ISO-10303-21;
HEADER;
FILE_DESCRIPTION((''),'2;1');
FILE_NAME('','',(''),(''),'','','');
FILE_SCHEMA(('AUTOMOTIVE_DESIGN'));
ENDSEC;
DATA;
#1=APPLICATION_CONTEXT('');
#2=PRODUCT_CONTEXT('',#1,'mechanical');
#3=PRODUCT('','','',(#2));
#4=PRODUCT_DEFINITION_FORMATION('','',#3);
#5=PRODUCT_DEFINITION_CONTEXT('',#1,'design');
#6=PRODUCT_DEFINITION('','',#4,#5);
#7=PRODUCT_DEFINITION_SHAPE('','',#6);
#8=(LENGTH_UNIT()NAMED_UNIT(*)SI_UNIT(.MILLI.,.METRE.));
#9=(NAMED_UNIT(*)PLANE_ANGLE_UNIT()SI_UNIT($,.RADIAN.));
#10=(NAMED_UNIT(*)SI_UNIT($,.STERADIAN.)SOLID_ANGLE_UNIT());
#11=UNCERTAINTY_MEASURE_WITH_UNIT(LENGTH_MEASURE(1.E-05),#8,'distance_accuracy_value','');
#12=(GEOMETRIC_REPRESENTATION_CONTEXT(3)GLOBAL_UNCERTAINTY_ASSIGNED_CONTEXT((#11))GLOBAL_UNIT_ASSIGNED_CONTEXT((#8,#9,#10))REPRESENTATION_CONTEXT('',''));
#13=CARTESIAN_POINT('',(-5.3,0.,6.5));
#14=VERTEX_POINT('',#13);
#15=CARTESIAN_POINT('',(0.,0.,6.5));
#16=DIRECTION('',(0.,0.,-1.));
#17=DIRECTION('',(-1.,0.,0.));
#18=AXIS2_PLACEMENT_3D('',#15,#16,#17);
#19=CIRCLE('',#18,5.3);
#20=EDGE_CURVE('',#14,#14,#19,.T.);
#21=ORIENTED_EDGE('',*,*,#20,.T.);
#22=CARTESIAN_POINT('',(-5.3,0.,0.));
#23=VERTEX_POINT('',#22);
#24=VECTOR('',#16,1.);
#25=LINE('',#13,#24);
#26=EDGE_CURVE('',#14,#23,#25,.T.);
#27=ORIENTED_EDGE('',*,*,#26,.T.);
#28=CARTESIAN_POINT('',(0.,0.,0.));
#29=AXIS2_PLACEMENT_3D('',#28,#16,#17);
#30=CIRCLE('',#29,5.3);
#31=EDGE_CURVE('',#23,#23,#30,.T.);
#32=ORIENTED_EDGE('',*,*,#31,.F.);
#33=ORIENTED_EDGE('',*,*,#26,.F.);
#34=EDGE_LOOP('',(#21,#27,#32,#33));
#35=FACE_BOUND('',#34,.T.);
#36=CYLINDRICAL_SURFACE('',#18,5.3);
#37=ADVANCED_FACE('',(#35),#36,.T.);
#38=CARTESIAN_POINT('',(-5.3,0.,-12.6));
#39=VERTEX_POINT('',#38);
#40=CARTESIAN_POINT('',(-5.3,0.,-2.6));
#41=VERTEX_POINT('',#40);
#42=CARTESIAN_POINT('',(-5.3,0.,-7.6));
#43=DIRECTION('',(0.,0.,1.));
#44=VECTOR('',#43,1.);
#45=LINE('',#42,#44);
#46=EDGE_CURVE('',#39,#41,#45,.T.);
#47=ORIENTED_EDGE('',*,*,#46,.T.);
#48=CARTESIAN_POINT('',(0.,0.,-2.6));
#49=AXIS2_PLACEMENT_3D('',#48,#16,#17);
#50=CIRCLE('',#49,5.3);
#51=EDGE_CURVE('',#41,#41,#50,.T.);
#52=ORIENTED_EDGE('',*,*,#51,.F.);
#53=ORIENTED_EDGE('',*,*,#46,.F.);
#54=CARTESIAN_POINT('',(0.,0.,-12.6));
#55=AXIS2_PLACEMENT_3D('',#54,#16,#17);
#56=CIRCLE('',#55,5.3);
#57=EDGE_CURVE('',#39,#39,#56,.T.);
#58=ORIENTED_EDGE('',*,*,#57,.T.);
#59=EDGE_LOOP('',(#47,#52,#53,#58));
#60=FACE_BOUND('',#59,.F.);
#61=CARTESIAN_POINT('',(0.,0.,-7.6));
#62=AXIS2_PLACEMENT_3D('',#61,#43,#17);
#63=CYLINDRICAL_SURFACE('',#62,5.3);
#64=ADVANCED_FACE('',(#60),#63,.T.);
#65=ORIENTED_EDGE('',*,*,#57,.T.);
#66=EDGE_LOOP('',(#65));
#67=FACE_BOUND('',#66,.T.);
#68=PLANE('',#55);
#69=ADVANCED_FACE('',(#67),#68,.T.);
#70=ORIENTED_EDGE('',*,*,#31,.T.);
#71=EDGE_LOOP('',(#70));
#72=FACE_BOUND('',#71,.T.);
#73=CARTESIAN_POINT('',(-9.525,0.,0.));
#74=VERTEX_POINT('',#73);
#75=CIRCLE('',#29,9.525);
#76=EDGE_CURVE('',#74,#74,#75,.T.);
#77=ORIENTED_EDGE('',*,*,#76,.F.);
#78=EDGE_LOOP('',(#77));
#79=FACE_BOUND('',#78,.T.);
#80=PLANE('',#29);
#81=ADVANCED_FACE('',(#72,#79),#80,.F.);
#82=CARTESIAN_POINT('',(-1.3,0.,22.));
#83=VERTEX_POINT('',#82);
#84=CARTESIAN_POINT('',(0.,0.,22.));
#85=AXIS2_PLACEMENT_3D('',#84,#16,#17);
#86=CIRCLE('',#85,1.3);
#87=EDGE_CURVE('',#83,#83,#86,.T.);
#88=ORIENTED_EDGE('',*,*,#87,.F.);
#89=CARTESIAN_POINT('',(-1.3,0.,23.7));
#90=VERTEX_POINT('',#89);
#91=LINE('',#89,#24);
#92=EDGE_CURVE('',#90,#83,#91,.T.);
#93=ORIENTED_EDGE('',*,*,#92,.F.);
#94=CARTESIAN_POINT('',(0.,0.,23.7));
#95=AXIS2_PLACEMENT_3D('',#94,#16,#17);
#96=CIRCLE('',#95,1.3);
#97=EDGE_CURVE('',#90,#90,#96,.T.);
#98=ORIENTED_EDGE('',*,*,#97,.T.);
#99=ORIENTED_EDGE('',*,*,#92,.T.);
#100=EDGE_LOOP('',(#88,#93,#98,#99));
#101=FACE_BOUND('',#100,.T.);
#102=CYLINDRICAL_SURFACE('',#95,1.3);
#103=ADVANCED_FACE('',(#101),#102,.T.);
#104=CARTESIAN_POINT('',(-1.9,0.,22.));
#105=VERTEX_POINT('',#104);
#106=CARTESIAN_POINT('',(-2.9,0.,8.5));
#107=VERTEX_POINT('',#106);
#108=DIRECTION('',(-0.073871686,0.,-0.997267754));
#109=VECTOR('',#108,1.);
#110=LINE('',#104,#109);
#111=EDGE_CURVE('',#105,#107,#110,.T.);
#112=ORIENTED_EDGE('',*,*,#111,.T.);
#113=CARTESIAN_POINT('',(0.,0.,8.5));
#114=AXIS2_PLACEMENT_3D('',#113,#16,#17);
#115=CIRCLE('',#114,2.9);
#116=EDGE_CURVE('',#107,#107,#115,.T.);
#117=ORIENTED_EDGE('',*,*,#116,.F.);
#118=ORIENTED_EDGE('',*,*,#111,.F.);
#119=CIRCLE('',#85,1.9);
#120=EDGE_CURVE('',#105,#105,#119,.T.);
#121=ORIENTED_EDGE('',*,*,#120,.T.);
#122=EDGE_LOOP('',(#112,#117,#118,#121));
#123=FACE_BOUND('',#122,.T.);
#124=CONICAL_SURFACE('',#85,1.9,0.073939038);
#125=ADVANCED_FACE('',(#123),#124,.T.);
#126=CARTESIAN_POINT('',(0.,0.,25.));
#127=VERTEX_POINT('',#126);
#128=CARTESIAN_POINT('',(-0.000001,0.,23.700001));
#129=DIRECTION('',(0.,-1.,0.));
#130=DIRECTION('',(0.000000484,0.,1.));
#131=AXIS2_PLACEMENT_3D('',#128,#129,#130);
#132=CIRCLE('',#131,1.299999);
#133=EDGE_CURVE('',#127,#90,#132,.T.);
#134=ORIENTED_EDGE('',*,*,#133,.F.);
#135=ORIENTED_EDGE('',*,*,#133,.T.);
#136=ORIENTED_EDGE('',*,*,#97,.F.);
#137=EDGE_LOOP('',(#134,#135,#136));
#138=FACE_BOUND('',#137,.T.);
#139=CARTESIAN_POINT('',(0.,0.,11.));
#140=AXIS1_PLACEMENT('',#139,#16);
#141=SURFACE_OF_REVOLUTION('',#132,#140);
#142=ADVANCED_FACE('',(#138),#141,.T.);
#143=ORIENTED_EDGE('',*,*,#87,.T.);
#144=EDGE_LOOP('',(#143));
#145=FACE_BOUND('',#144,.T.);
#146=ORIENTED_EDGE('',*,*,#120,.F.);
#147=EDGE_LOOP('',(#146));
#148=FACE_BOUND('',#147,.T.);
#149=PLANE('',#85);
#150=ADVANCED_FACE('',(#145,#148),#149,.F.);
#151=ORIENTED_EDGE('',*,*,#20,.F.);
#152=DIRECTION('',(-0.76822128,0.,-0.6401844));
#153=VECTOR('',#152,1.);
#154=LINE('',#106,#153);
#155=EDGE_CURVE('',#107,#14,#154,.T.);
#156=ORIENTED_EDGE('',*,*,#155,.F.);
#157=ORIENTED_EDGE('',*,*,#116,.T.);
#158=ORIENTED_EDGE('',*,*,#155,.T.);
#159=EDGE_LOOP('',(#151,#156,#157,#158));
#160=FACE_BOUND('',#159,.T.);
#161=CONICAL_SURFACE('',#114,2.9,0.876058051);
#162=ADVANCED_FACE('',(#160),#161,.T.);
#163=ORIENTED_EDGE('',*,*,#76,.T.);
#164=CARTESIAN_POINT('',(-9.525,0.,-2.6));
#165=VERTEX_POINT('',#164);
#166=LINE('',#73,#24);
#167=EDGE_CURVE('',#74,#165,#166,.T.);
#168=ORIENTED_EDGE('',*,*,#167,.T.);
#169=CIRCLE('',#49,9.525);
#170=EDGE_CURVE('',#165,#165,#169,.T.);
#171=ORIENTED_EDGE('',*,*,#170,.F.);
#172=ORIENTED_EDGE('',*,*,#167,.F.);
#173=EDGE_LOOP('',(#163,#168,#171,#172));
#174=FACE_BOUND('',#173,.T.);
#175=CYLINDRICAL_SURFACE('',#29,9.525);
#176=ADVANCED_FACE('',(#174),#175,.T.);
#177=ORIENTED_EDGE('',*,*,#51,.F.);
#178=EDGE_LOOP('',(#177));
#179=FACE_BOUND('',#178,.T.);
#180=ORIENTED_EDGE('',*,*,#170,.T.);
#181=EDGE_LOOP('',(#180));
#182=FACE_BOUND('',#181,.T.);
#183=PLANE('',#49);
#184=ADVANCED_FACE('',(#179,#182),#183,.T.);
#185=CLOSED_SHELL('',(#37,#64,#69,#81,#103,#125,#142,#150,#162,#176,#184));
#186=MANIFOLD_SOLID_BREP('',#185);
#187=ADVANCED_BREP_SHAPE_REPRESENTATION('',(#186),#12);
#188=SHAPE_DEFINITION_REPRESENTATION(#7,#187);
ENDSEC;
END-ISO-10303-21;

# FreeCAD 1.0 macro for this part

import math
import FreeCAD as App
import Part
import Sketcher
Q = App.Units.Quantity

doc = App.newDocument("Part")
body = doc.addObject("PartDesign::Body", "Body")

# Sketch on XZ plane
sketch1 = body.newObject("Sketcher::SketchObject", "Sketch")
sketch1.AttachmentSupport = (doc.getObject("XZ_Plane"), [""])
sketch1.MapMode = "FlatFace"
sketch1.addGeometry(Part.LineSegment(App.Vector(-1.3, 22, 0), App.Vector(-1.9, 22, 0)), False)
sketch1.addGeometry(Part.LineSegment(App.Vector(-1.9, 22, 0), App.Vector(-2.9, 8.5, 0)), False)
sketch1.addGeometry(Part.LineSegment(App.Vector(-2.9, 8.5, 0), App.Vector(-5.3, 6.5, 0)), False)
sketch1.addGeometry(Part.LineSegment(App.Vector(-5.3, 6.5, 0), App.Vector(-5.3, 0, 0)), False)
sketch1.addGeometry(Part.LineSegment(App.Vector(-5.3, 0, 0), App.Vector(-9.5, 0, 0)), False)
sketch1.addGeometry(Part.LineSegment(App.Vector(-9.5, 0, 0), App.Vector(-9.5, -2.6, 0)), False)
sketch1.addGeometry(Part.LineSegment(App.Vector(-9.5, -2.6, 0), App.Vector(-5.3, -2.6, 0)), False)
sketch1.addGeometry(Part.LineSegment(App.Vector(-5.3, -2.6, 0), App.Vector(-5.3, -12.6, 0)), False)
sketch1.addGeometry(Part.LineSegment(App.Vector(-5.3, -12.6, 0), App.Vector(0, -12.6, 0)), False)
sketch1.addGeometry(Part.LineSegment(App.Vector(0, -12.6, 0), App.Vector(0, 25, 0)), False)
sketch1.addGeometry(Part.ArcOfCircle(Part.Circle(App.Vector(0, 23.7, 0), App.Vector(0, 0, 1), 1.3), math.radians(90), math.radians(180)), False)
sketch1.addGeometry(Part.LineSegment(App.Vector(-1.3, 23.7, 0), App.Vector(-1.3, 22, 0)), False)
sketch1.addConstraint(Sketcher.Constraint("Coincident", 0, 2, 1, 1))
sketch1.addConstraint(Sketcher.Constraint("Coincident", 1, 2, 2, 1))
sketch1.addConstraint(Sketcher.Constraint("Coincident", 2, 2, 3, 1))
sketch1.addConstraint(Sketcher.Constraint("Coincident", 3, 2, 4, 1))
sketch1.addConstraint(Sketcher.Constraint("Coincident", 4, 2, 5, 1))
sketch1.addConstraint(Sketcher.Constraint("Coincident", 5, 2, 6, 1))
sketch1.addConstraint(Sketcher.Constraint("Coincident", 6, 2, 7, 1))
sketch1.addConstraint(Sketcher.Constraint("Coincident", 7, 2, 8, 1))
sketch1.addConstraint(Sketcher.Constraint("Coincident", 8, 2, 9, 1))
sketch1.addConstraint(Sketcher.Constraint("Coincident", 9, 2, 10, 1))
sketch1.addConstraint(Sketcher.Constraint("Tangent", 10, 2, 11, 1))
sketch1.addConstraint(Sketcher.Constraint("Coincident", 11, 2, 0, 1))
sketch1.addConstraint(Sketcher.Constraint("Horizontal", 0))
sketch1.addConstraint(Sketcher.Constraint("Vertical", 3))
sketch1.addConstraint(Sketcher.Constraint("Horizontal", 4))
sketch1.addConstraint(Sketcher.Constraint("Vertical", 5))
sketch1.addConstraint(Sketcher.Constraint("Horizontal", 6))
sketch1.addConstraint(Sketcher.Constraint("Vertical", 7))
sketch1.addConstraint(Sketcher.Constraint("Horizontal", 8))
sketch1.addConstraint(Sketcher.Constraint("Vertical", 9))
sketch1.addConstraint(Sketcher.Constraint("Vertical", 11))
sketch1.addConstraint(Sketcher.Constraint("PointOnObject", 10, 3, -2))
sketch1.addConstraint(Sketcher.Constraint("PointOnObject", 3, 2, -1))
sketch1.addConstraint(Sketcher.Constraint("PointOnObject", 8, 2, -2))
sketch1.addConstraint(Sketcher.Constraint("Vertical", 3, 2, 6, 2))
sketch1.addConstraint(Sketcher.Constraint("Radius", 10, Q("1.299999 mm")))
sketch1.addConstraint(Sketcher.Constraint("DistanceY", 7, 2, 7, 1, Q("10 mm")))
sketch1.addConstraint(Sketcher.Constraint("DistanceX", 0, 2, 0, 1, Q("0.6 mm")))
sketch1.addConstraint(Sketcher.Constraint("DistanceX", 8, 1, 8, 2, Q("5.3 mm")))
sketch1.addConstraint(Sketcher.Constraint("DistanceY", 3, 2, 3, 1, Q("6.5 mm")))
sketch1.addConstraint(Sketcher.Constraint("DistanceY", 5, 2, 5, 1, Q("2.6 mm")))
sketch1.addConstraint(Sketcher.Constraint("DistanceY", 9, 1, 9, 2, Q("37.6 mm")))
sketch1.addConstraint(Sketcher.Constraint("DistanceY", 11, 2, 11, 1, Q("1.7 mm")))
sketch1.addConstraint(Sketcher.Constraint("DistanceX", 1, 2, 0, 2, Q("1 mm")))
sketch1.addConstraint(Sketcher.Constraint("DistanceY", 2, 2, 1, 2, Q("2 mm")))
sketch1.addConstraint(Sketcher.Constraint("DistanceX", 4, 2, 4, 1, Q("4.225 mm")))
revolution = body.newObject("PartDesign::Revolution", "Revolution")
revolution.Profile = sketch1
revolution.ReferenceAxis = (sketch1, ["V_Axis"])
revolution.Angle = 360

doc.recompute()
